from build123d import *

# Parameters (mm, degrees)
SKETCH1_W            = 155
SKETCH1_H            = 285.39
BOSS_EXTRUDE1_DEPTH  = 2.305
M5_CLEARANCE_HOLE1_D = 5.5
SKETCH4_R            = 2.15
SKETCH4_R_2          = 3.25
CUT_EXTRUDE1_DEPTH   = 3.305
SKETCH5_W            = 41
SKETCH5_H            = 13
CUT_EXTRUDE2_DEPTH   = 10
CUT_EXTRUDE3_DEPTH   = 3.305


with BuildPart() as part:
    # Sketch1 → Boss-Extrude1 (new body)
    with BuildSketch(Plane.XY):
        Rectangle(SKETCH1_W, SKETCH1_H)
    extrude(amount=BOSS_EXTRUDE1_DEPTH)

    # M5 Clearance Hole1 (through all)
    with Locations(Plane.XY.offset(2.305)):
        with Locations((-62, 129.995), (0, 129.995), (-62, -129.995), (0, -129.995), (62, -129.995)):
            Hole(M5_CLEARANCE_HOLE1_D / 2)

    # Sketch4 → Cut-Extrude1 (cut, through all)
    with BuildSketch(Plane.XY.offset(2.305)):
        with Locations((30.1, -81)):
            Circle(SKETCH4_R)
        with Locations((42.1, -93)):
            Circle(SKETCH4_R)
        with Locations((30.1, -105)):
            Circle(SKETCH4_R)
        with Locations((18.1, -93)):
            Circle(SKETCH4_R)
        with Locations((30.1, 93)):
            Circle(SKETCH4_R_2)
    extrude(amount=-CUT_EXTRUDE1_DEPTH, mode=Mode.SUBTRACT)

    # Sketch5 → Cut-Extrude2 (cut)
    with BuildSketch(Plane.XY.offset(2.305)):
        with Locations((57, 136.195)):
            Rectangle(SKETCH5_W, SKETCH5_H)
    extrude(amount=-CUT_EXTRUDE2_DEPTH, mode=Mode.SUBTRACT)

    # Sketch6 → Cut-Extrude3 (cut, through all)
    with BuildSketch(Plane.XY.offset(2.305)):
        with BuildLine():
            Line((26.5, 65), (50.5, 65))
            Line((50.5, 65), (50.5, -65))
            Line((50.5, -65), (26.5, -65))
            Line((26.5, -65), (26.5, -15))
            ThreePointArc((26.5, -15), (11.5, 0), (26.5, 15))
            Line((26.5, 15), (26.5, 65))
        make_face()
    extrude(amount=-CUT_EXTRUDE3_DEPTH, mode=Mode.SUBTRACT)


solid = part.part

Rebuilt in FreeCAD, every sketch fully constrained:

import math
import FreeCAD as App
import Part
import Sketcher
from FreeCAD import Vector


def add_polygon(sketch, points):
    """Adds a closed chain of lines whose ends are joined by coincident constraints."""
    first, n = sketch.GeometryCount, len(points)
    for a, b in zip(points, points[1:] + points[:1]):
        sketch.addGeometry(Part.LineSegment(App.Vector(*a, 0), App.Vector(*b, 0)), False)
    for i in range(n):
        sketch.addConstraint(Sketcher.Constraint("Coincident", first + i, 2, first + (i + 1) % n, 1))

doc = App.newDocument("Part")
body = doc.addObject("PartDesign::Body", "Body")

# Sketch on XY plane
sketch1 = doc.addObject("Sketcher::SketchObject", "Sketch")
body.addObject(sketch1)
sketch1.AttachmentSupport = (doc.XY_Plane, [""])
sketch1.MapMode = "FlatFace"
add_polygon(sketch1, [(-77.5, 142.695), (-77.5, -142.695), (77.5, -142.695), (77.5, 142.695)])  # lines 0-3
sketch1.addConstraint([
    Sketcher.Constraint("Vertical", 0),
    Sketcher.Constraint("Horizontal", 1),
    Sketcher.Constraint("Vertical", 2),
    Sketcher.Constraint("Horizontal", 3),
    Sketcher.Constraint("Symmetric", 0, 2, 2, 2, -1, 1),
    Sketcher.Constraint("DistanceX", 1, 1, 1, 2, 155.0),
    Sketcher.Constraint("DistanceY", 0, 2, 0, 1, 285.39),
])
pad1 = doc.addObject("PartDesign::Pad", "Pad")
body.addObject(pad1)
pad1.Profile = sketch1
pad1.Length = 2.305

# Sketch on XY plane
sketch2 = doc.addObject("Sketcher::SketchObject", "Sketch001")
body.addObject(sketch2)
sketch2.AttachmentSupport = (doc.XY_Plane, [""])
sketch2.MapMode = "FlatFace"
sketch2.AttachmentOffset = App.Placement(Vector(0, 0, 2.305), App.Rotation())
sketch2.addGeometry([
    Part.Circle(Vector(-62, 129.995, 0), Vector(0, 0, 1), 2.75),  # 0
    Part.Circle(Vector(0, 129.995, 0), Vector(0, 0, 1), 2.75),  # 1
    Part.Circle(Vector(-62, -129.995, 0), Vector(0, 0, 1), 2.75),  # 2
    Part.Circle(Vector(0, -129.995, 0), Vector(0, 0, 1), 2.75),  # 3
    Part.Circle(Vector(62, -129.995, 0), Vector(0, 0, 1), 2.75),  # 4
], False)
sketch2.addConstraint([
    Sketcher.Constraint("Equal", 0, 1),
    Sketcher.Constraint("Equal", 1, 2),
    Sketcher.Constraint("Equal", 2, 3),
    Sketcher.Constraint("Equal", 3, 4),
    Sketcher.Constraint("Symmetric", 1, 3, 3, 3, -1, 1),
    Sketcher.Constraint("Symmetric", 0, 3, 4, 3, -1, 1),
    Sketcher.Constraint("Symmetric", 2, 3, 4, 3, -2),
    Sketcher.Constraint("PointOnObject", 1, 3, -2),
    Sketcher.Constraint("Horizontal", 0, 3, 1, 3),
    Sketcher.Constraint("Diameter", 0, 5.5),
    Sketcher.Constraint("DistanceX", 0, 3, -1, 1, 62.0),
    Sketcher.Constraint("DistanceY", 2, 3, 0, 3, 259.99),
])
doc.recompute()
hole = doc.addObject("PartDesign::Hole", "Hole")
body.addObject(hole)
hole.Profile = sketch2
hole.ThreadType = "None"
hole.Diameter = 5.5
hole.DepthType = "ThroughAll"

# Sketch on XY plane
sketch3 = doc.addObject("Sketcher::SketchObject", "Sketch002")
body.addObject(sketch3)
sketch3.AttachmentSupport = (doc.XY_Plane, [""])
sketch3.MapMode = "FlatFace"
sketch3.AttachmentOffset = App.Placement(Vector(0, 0, 2.305), App.Rotation())
sketch3.addGeometry([
    Part.Circle(Vector(30.1, -81, 0), Vector(0, 0, 1), 2.15),  # 0
    Part.Circle(Vector(42.1, -93, 0), Vector(0, 0, 1), 2.15),  # 1
    Part.Circle(Vector(30.1, -105, 0), Vector(0, 0, 1), 2.15),  # 2
    Part.Circle(Vector(18.1, -93, 0), Vector(0, 0, 1), 2.15),  # 3
    Part.Circle(Vector(30.1, 93, 0), Vector(0, 0, 1), 3.25),  # 4
], False)
sketch3.addConstraint([
    Sketcher.Constraint("Equal", 0, 1),
    Sketcher.Constraint("Equal", 1, 2),
    Sketcher.Constraint("Equal", 2, 3),
    Sketcher.Constraint("Horizontal", 1, 3, 3, 3),
    Sketcher.Constraint("Vertical", 0, 3, 2, 3),
    Sketcher.Constraint("Vertical", 2, 3, 4, 3),
    Sketcher.Constraint("Diameter", 0, 4.3),
    Sketcher.Constraint("Diameter", 4, 6.5),
    Sketcher.Constraint("DistanceY", 0, 3, -1, 1, 81.0),
    Sketcher.Constraint("DistanceY", 1, 3, -1, 1, 93.0),
    Sketcher.Constraint("DistanceY", 2, 3, -1, 1, 105.0),
    Sketcher.Constraint("DistanceY", -1, 1, 4, 3, 93.0),
    Sketcher.Constraint("DistanceX", 0, 3, 1, 3, 12.0),
    Sketcher.Constraint("DistanceX", 3, 3, 0, 3, 12.0),
    Sketcher.Constraint("DistanceX", -1, 1, 0, 3, 30.1),
])
pocket1 = doc.addObject("PartDesign::Pocket", "Pocket")
body.addObject(pocket1)
pocket1.Profile = sketch3
pocket1.Type = "ThroughAll"

# Sketch on XY plane
sketch4 = doc.addObject("Sketcher::SketchObject", "Sketch003")
body.addObject(sketch4)
sketch4.AttachmentSupport = (doc.XY_Plane, [""])
sketch4.MapMode = "FlatFace"
sketch4.AttachmentOffset = App.Placement(Vector(0, 0, 2.305), App.Rotation())
add_polygon(sketch4, [(36.5, 142.695), (36.5, 129.695), (77.5, 129.695), (77.5, 142.695)])  # lines 0-3
sketch4.addConstraint([
    Sketcher.Constraint("Vertical", 0),
    Sketcher.Constraint("Horizontal", 1),
    Sketcher.Constraint("Vertical", 2),
    Sketcher.Constraint("Horizontal", 3),
    Sketcher.Constraint("DistanceX", 1, 1, 1, 2, 41.0),
    Sketcher.Constraint("DistanceY", 0, 2, 0, 1, 13.0),
    Sketcher.Constraint("DistanceX", -1, 1, 0, 2, 36.5),
    Sketcher.Constraint("DistanceY", -1, 1, 0, 2, 129.695),
])
pocket2 = doc.addObject("PartDesign::Pocket", "Pocket001")
body.addObject(pocket2)
pocket2.Profile = sketch4
pocket2.Length = 10

# Sketch on XY plane
sketch5 = doc.addObject("Sketcher::SketchObject", "Sketch004")
body.addObject(sketch5)
sketch5.AttachmentSupport = (doc.XY_Plane, [""])
sketch5.MapMode = "FlatFace"
sketch5.AttachmentOffset = App.Placement(Vector(0, 0, 2.305), App.Rotation())
sketch5.addGeometry([
    Part.LineSegment(Vector(50.5, 65, 0), Vector(26.5, 65, 0)),  # 0
    Part.LineSegment(Vector(26.5, 65, 0), Vector(26.5, 15, 0)),  # 1
    Part.ArcOfCircle(Part.Circle(Vector(26.5, 0, 0), Vector(0, 0, 1), 15), math.radians(90), math.radians(270)),  # 2
    Part.LineSegment(Vector(26.5, -15, 0), Vector(26.5, -65, 0)),  # 3
    Part.LineSegment(Vector(26.5, -65, 0), Vector(50.5, -65, 0)),  # 4
    Part.LineSegment(Vector(50.5, -65, 0), Vector(50.5, 65, 0)),  # 5
], False)
sketch5.addConstraint([
    Sketcher.Constraint("Coincident", 0, 2, 1, 1),
    Sketcher.Constraint("Coincident", 1, 2, 2, 1),
    Sketcher.Constraint("Coincident", 2, 2, 3, 1),
    Sketcher.Constraint("Coincident", 3, 2, 4, 1),
    Sketcher.Constraint("Coincident", 4, 2, 5, 1),
    Sketcher.Constraint("Coincident", 5, 2, 0, 1),
    Sketcher.Constraint("Horizontal", 0),
    Sketcher.Constraint("Vertical", 1),
    Sketcher.Constraint("Vertical", 3),
    Sketcher.Constraint("Horizontal", 4),
    Sketcher.Constraint("Vertical", 5),
    Sketcher.Constraint("Symmetric", 1, 2, 2, 2, -1),
    Sketcher.Constraint("Vertical", 2, 3, 0, 2),
    Sketcher.Constraint("Equal", 1, 3),
    Sketcher.Constraint("Radius", 2, 15.0),
    Sketcher.Constraint("DistanceX", 0, 2, 0, 1, 24.0),
    Sketcher.Constraint("DistanceY", 1, 2, 1, 1, 50.0),
    Sketcher.Constraint("DistanceX", -1, 1, 2, 3, 26.5),
])
pocket3 = doc.addObject("PartDesign::Pocket", "Pocket002")
body.addObject(pocket3)
pocket3.Profile = sketch5
pocket3.Type = "ThroughAll"

doc.recompute()
